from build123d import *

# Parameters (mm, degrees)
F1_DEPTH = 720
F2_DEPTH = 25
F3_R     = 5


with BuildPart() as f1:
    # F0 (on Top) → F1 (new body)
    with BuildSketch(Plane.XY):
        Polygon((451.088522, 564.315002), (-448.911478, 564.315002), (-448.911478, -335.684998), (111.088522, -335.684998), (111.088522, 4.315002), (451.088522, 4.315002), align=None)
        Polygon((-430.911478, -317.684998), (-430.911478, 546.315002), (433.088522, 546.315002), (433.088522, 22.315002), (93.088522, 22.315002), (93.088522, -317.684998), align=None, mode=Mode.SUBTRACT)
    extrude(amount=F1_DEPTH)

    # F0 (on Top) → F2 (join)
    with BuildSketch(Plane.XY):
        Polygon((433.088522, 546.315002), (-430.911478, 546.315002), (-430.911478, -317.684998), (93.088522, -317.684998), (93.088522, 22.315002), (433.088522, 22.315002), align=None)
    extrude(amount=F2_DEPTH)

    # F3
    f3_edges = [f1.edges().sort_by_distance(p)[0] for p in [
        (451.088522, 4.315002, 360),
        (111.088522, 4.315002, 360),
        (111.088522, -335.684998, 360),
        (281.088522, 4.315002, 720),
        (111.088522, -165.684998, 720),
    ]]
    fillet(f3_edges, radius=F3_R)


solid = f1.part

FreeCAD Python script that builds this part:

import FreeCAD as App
import Part
import Sketcher


def edges_at(feature, points):
    """Names of the edges that pass closest to the given points."""
    edges = feature.Shape.Edges
    near = lambda p: min(range(len(edges)), key=lambda i: edges[i].distToShape(Part.Vertex(*p))[0])
    return sorted({f"Edge{near(p) + 1}" for p in points})

doc = App.newDocument("Part")
body = doc.addObject("PartDesign::Body", "Body")

# Sketch on XY plane
sketch1 = body.newObject("Sketcher::SketchObject", "Sketch")
sketch1.AttachmentSupport = (doc.getObject("XY_Plane"), [""])
sketch1.MapMode = "FlatFace"
sketch1.addGeometry(Part.LineSegment(App.Vector(451.088522, 564.315002, 0), App.Vector(-448.911478, 564.315002, 0)), False)
sketch1.addGeometry(Part.LineSegment(App.Vector(-448.911478, 564.315002, 0), App.Vector(-448.911478, -335.684998, 0)), False)
sketch1.addGeometry(Part.LineSegment(App.Vector(-448.911478, -335.684998, 0), App.Vector(111.088522, -335.684998, 0)), False)
sketch1.addGeometry(Part.LineSegment(App.Vector(111.088522, -335.684998, 0), App.Vector(111.088522, 4.315002, 0)), False)
sketch1.addGeometry(Part.LineSegment(App.Vector(111.088522, 4.315002, 0), App.Vector(451.088522, 4.315002, 0)), False)
sketch1.addGeometry(Part.LineSegment(App.Vector(451.088522, 4.315002, 0), App.Vector(451.088522, 564.315002, 0)), False)
sketch1.addGeometry(Part.LineSegment(App.Vector(93.088522, -317.684998, 0), App.Vector(-430.911478, -317.684998, 0)), False)
sketch1.addGeometry(Part.LineSegment(App.Vector(-430.911478, -317.684998, 0), App.Vector(-430.911478, 546.315002, 0)), False)
sketch1.addGeometry(Part.LineSegment(App.Vector(-430.911478, 546.315002, 0), App.Vector(433.088522, 546.315002, 0)), False)
sketch1.addGeometry(Part.LineSegment(App.Vector(433.088522, 546.315002, 0), App.Vector(433.088522, 22.315002, 0)), False)
sketch1.addGeometry(Part.LineSegment(App.Vector(433.088522, 22.315002, 0), App.Vector(93.088522, 22.315002, 0)), False)
sketch1.addGeometry(Part.LineSegment(App.Vector(93.088522, 22.315002, 0), App.Vector(93.088522, -317.684998, 0)), False)
sketch1.addConstraint(Sketcher.Constraint("Coincident", 0, 2, 1, 1))
sketch1.addConstraint(Sketcher.Constraint("Coincident", 1, 2, 2, 1))
sketch1.addConstraint(Sketcher.Constraint("Coincident", 2, 2, 3, 1))
sketch1.addConstraint(Sketcher.Constraint("Coincident", 3, 2, 4, 1))
sketch1.addConstraint(Sketcher.Constraint("Coincident", 4, 2, 5, 1))
sketch1.addConstraint(Sketcher.Constraint("Coincident", 5, 2, 0, 1))
sketch1.addConstraint(Sketcher.Constraint("Coincident", 6, 2, 7, 1))
sketch1.addConstraint(Sketcher.Constraint("Coincident", 7, 2, 8, 1))
sketch1.addConstraint(Sketcher.Constraint("Coincident", 8, 2, 9, 1))
sketch1.addConstraint(Sketcher.Constraint("Coincident", 9, 2, 10, 1))
sketch1.addConstraint(Sketcher.Constraint("Coincident", 10, 2, 11, 1))
sketch1.addConstraint(Sketcher.Constraint("Coincident", 11, 2, 6, 1))
sketch1.addConstraint(Sketcher.Constraint("Horizontal", 0))
sketch1.addConstraint(Sketcher.Constraint("Vertical", 1))
sketch1.addConstraint(Sketcher.Constraint("Horizontal", 2))
sketch1.addConstraint(Sketcher.Constraint("Vertical", 3))
sketch1.addConstraint(Sketcher.Constraint("Horizontal", 4))
sketch1.addConstraint(Sketcher.Constraint("Vertical", 5))
sketch1.addConstraint(Sketcher.Constraint("Horizontal", 6))
sketch1.addConstraint(Sketcher.Constraint("Vertical", 7))
sketch1.addConstraint(Sketcher.Constraint("Horizontal", 8))
sketch1.addConstraint(Sketcher.Constraint("Vertical", 9))
sketch1.addConstraint(Sketcher.Constraint("Horizontal", 10))
sketch1.addConstraint(Sketcher.Constraint("Vertical", 11))
sketch1.addConstraint(Sketcher.Constraint("Equal", 4, 10))
sketch1.addConstraint(Sketcher.Constraint("Equal", 0, 1))
sketch1.addConstraint(Sketcher.Constraint("Equal", 10, 3))
sketch1.addConstraint(Sketcher.Constraint("Equal", 8, 7))
sketch1.addConstraint(Sketcher.Constraint("Equal", 6, 9))
sketch1.addConstraint(Sketcher.Constraint("DistanceX", 0, 2, 0, 1, 900.0))
sketch1.addConstraint(Sketcher.Constraint("DistanceX", 2, 1, 2, 2, 560.0))
sketch1.addConstraint(Sketcher.Constraint("DistanceX", 6, 2, 6, 1, 524.0))
sketch1.addConstraint(Sketcher.Constraint("DistanceX", 1, 2, 6, 2, 18.0))
sketch1.addConstraint(Sketcher.Constraint("DistanceY", 1, 2, 6, 2, 18.0))
sketch1.addConstraint(Sketcher.Constraint("DistanceY", -1, 1, 0, 2, 564.315002))
sketch1.addConstraint(Sketcher.Constraint("DistanceX", 0, 2, -1, 1, 448.911478))
pad1 = body.newObject("PartDesign::Pad", "Pad")
pad1.Profile = sketch1
pad1.Length = 720

# Sketch on XY plane
sketch2 = body.newObject("Sketcher::SketchObject", "Sketch001")
sketch2.AttachmentSupport = (doc.getObject("XY_Plane"), [""])
sketch2.MapMode = "FlatFace"
sketch2.addGeometry(Part.LineSegment(App.Vector(433.088522, 546.315002, 0), App.Vector(-430.911478, 546.315002, 0)), False)
sketch2.addGeometry(Part.LineSegment(App.Vector(-430.911478, 546.315002, 0), App.Vector(-430.911478, -317.684998, 0)), False)
sketch2.addGeometry(Part.LineSegment(App.Vector(-430.911478, -317.684998, 0), App.Vector(93.088522, -317.684998, 0)), False)
sketch2.addGeometry(Part.LineSegment(App.Vector(93.088522, -317.684998, 0), App.Vector(93.088522, 22.315002, 0)), False)
sketch2.addGeometry(Part.LineSegment(App.Vector(93.088522, 22.315002, 0), App.Vector(433.088522, 22.315002, 0)), False)
sketch2.addGeometry(Part.LineSegment(App.Vector(433.088522, 22.315002, 0), App.Vector(433.088522, 546.315002, 0)), False)
sketch2.addConstraint(Sketcher.Constraint("Coincident", 0, 2, 1, 1))
sketch2.addConstraint(Sketcher.Constraint("Coincident", 1, 2, 2, 1))
sketch2.addConstraint(Sketcher.Constraint("Coincident", 2, 2, 3, 1))
sketch2.addConstraint(Sketcher.Constraint("Coincident", 3, 2, 4, 1))
sketch2.addConstraint(Sketcher.Constraint("Coincident", 4, 2, 5, 1))
sketch2.addConstraint(Sketcher.Constraint("Coincident", 5, 2, 0, 1))
sketch2.addConstraint(Sketcher.Constraint("Horizontal", 0))
sketch2.addConstraint(Sketcher.Constraint("Vertical", 1))
sketch2.addConstraint(Sketcher.Constraint("Horizontal", 2))
sketch2.addConstraint(Sketcher.Constraint("Vertical", 3))
sketch2.addConstraint(Sketcher.Constraint("Horizontal", 4))
sketch2.addConstraint(Sketcher.Constraint("Vertical", 5))
sketch2.addConstraint(Sketcher.Constraint("Equal", 0, 1))
sketch2.addConstraint(Sketcher.Constraint("Equal", 4, 3))
sketch2.addConstraint(Sketcher.Constraint("DistanceX", 0, 2, 0, 1, 864.0))
sketch2.addConstraint(Sketcher.Constraint("DistanceX", 2, 1, 2, 2, 524.0))
sketch2.addConstraint(Sketcher.Constraint("DistanceY", -1, 1, 0, 2, 546.315002))
sketch2.addConstraint(Sketcher.Constraint("DistanceX", 0, 2, -1, 1, 430.911478))
pad2 = body.newObject("PartDesign::Pad", "Pad001")
pad2.Profile = sketch2
pad2.Length = 25
doc.recompute()

fillet = body.newObject("PartDesign::Fillet", "Fillet")
fillet.Base = (pad2, edges_at(pad2, [
    (451.089, 4.315, 360),
    (111.089, 4.315, 360),
    (111.089, -335.685, 360),
    (281.089, 4.315, 720),
    (111.089, -165.685, 720),
]))
fillet.Radius = 5

doc.recompute()
